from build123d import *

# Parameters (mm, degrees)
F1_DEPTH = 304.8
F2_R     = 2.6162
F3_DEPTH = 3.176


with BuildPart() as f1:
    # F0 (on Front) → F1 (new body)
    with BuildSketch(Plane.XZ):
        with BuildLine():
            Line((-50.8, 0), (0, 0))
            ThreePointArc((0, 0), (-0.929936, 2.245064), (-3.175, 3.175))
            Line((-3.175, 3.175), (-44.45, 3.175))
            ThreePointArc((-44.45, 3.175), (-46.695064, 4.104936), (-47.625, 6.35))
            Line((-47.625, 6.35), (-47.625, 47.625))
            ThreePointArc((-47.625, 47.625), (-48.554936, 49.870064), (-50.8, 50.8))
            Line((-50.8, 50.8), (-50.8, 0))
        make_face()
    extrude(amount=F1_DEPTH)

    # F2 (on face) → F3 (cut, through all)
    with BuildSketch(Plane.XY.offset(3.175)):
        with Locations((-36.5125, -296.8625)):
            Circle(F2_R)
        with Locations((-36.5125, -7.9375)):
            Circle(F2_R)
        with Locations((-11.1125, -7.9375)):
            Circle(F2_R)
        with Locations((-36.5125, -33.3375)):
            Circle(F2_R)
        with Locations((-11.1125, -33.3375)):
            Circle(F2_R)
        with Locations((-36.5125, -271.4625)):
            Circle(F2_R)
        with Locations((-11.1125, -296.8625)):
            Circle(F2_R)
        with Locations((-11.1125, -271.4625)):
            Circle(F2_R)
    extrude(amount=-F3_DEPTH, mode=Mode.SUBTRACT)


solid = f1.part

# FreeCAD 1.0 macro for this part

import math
import FreeCAD as App
import Part
import Sketcher

V = App.Vector
Q = App.Units.Quantity

doc = App.newDocument("Part")
body = doc.addObject("PartDesign::Body", "Body")

# Sketch on XZ plane
sketch1 = body.newObject("Sketcher::SketchObject", "Sketch")
sketch1.AttachmentSupport = (doc.getObject("XZ_Plane"), [""])
sketch1.MapMode = "FlatFace"
sketch1.addGeometry([
    Part.LineSegment(V(-50.8, 0, 0), V(0, 0, 0)),  # 0
    Part.ArcOfCircle(Part.Circle(V(-3.175, 0, 0), V(0, 0, 1), 3.175), math.radians(0.000002), math.radians(89.999998)),  # 1
    Part.LineSegment(V(-3.175, 3.175, 0), V(-44.45, 3.175, 0)),  # 2
    Part.ArcOfCircle(Part.Circle(V(-44.45, 6.35, 0), V(0, 0, 1), 3.175), math.radians(-179.999998), math.radians(-90.000002)),  # 3
    Part.LineSegment(V(-47.625, 6.35, 0), V(-47.625, 47.625, 0)),  # 4
    Part.ArcOfCircle(Part.Circle(V(-50.8, 47.625, 0), V(0, 0, 1), 3.175), math.radians(0.000002), math.radians(89.999998)),  # 5
    Part.LineSegment(V(-50.8, 50.8, 0), V(-50.8, 0, 0)),  # 6
], False)
sketch1.addConstraint([
    Sketcher.Constraint("Coincident", 0, 2, 1, 1),
    Sketcher.Constraint("Tangent", 1, 2, 2, 1),
    Sketcher.Constraint("Tangent", 2, 2, 3, 2),
    Sketcher.Constraint("Tangent", 3, 1, 4, 1),
    Sketcher.Constraint("Tangent", 4, 2, 5, 1),
    Sketcher.Constraint("Coincident", 5, 2, 6, 1),
    Sketcher.Constraint("Coincident", 6, 2, 0, 1),
    Sketcher.Constraint("Horizontal", 0),
    Sketcher.Constraint("Horizontal", 2),
    Sketcher.Constraint("Vertical", 4),
    Sketcher.Constraint("Vertical", 6),
    Sketcher.Constraint("Coincident", 0, 2, -1, 1),
    Sketcher.Constraint("Equal", 1, 3),
    Sketcher.Constraint("Equal", 3, 5),
    Sketcher.Constraint("PointOnObject", 1, 3, -1),
    Sketcher.Constraint("Equal", 2, 4),
    Sketcher.Constraint("Equal", 0, 6),
    Sketcher.Constraint("DistanceX", 0, 1, 0, 2, Q("2 in")),
    Sketcher.Constraint("Radius", 1, Q("0.125 in")),
])
pad1 = body.newObject("PartDesign::Pad", "Pad")
pad1.Profile = sketch1
pad1.Length = Q("12 in")

# Sketch on XY plane
sketch2 = body.newObject("Sketcher::SketchObject", "Sketch001")
sketch2.AttachmentSupport = (doc.getObject("XY_Plane"), [""])
sketch2.MapMode = "FlatFace"
sketch2.AttachmentOffset = App.Placement(V(0, 0, 0.125 * 25.4), App.Rotation())
sketch2.addGeometry([
    Part.Circle(V(-36.5125, -296.8625, 0), V(0, 0, 1), 2.6162),  # 0
    Part.Circle(V(-36.5125, -7.9375, 0), V(0, 0, 1), 2.6162),  # 1
    Part.Circle(V(-11.1125, -7.9375, 0), V(0, 0, 1), 2.6162),  # 2
    Part.Circle(V(-36.5125, -33.3375, 0), V(0, 0, 1), 2.6162),  # 3
    Part.Circle(V(-11.1125, -33.3375, 0), V(0, 0, 1), 2.6162),  # 4
    Part.Circle(V(-36.5125, -271.4625, 0), V(0, 0, 1), 2.6162),  # 5
    Part.Circle(V(-11.1125, -296.8625, 0), V(0, 0, 1), 2.6162),  # 6
    Part.Circle(V(-11.1125, -271.4625, 0), V(0, 0, 1), 2.6162),  # 7
], False)
sketch2.addConstraint([
    Sketcher.Constraint("Equal", 0, 1),
    Sketcher.Constraint("Equal", 1, 2),
    Sketcher.Constraint("Equal", 2, 3),
    Sketcher.Constraint("Equal", 3, 4),
    Sketcher.Constraint("Equal", 4, 5),
    Sketcher.Constraint("Equal", 5, 6),
    Sketcher.Constraint("Equal", 6, 7),
    Sketcher.Constraint("Horizontal", 1, 3, 2, 3),
    Sketcher.Constraint("Horizontal", 3, 3, 4, 3),
    Sketcher.Constraint("Horizontal", 0, 3, 6, 3),
    Sketcher.Constraint("Horizontal", 5, 3, 7, 3),
    Sketcher.Constraint("Vertical", 0, 3, 1, 3),
    Sketcher.Constraint("Vertical", 1, 3, 3, 3),
    Sketcher.Constraint("Vertical", 2, 3, 4, 3),
    Sketcher.Constraint("Vertical", 3, 3, 5, 3),
    Sketcher.Constraint("Vertical", 4, 3, 6, 3),
    Sketcher.Constraint("Vertical", 6, 3, 7, 3),
    Sketcher.Constraint("Diameter", 0, Q("0.206 in")),
    Sketcher.Constraint("DistanceX", 1, 3, 2, 3, Q("1 in")),
    Sketcher.Constraint("DistanceY", 3, 3, 1, 3, Q("1 in")),
    Sketcher.Constraint("DistanceY", 0, 3, 5, 3, Q("1 in")),
    Sketcher.Constraint("DistanceX", 0, 3, -1, 1, Q("1.4375 in")),
    Sketcher.Constraint("DistanceY", 0, 3, -1, 1, Q("11.6875 in")),
    Sketcher.Constraint("DistanceY", 1, 3, -1, 1, Q("0.3125 in")),
])
pocket1 = body.newObject("PartDesign::Pocket", "Pocket")
pocket1.Profile = sketch2
pocket1.Type = "ThroughAll"

doc.recompute()
